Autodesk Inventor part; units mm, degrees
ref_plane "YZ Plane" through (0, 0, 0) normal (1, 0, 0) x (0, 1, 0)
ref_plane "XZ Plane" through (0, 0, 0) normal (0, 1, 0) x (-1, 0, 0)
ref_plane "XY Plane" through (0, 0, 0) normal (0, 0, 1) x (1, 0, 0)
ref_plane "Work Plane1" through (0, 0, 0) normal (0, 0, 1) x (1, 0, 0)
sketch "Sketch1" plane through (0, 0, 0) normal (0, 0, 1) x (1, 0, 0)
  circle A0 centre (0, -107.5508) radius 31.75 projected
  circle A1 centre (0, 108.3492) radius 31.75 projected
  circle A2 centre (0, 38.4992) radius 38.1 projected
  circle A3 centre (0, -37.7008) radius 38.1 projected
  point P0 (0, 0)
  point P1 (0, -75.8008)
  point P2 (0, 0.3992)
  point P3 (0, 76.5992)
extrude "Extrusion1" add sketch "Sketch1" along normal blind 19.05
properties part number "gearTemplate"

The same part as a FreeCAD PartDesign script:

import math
import FreeCAD as App
import Part
import Sketcher
from FreeCAD import Vector
Q = App.Units.Quantity

doc = App.newDocument("Part")
body = doc.addObject("PartDesign::Body", "Body")
body.AllowCompound = True

# Sketch on XY plane
sketch1 = body.newObject("Sketcher::SketchObject", "Sketch")
sketch1.AttachmentSupport = (doc.getObject("XY_Plane"), [""])
sketch1.MapMode = "FlatFace"
sketch1.addGeometry([
    Part.Circle(Vector(0, -108, 0), Vector(0, 0, 1), 32),  # 0
    Part.Circle(Vector(0, 108, 0), Vector(0, 0, 1), 32),  # 1
    Part.ArcOfCircle(Part.Circle(Vector(0, 38, 0), Vector(0, 0, 1), 38), math.radians(90), math.radians(270)),  # 2
    Part.ArcOfCircle(Part.Circle(Vector(0, 38, 0), Vector(0, 0, 1), 38), math.radians(-90), math.radians(90)),  # 3
    Part.ArcOfCircle(Part.Circle(Vector(0, -38, 0), Vector(0, 0, 1), 38), math.radians(90), math.radians(270)),  # 4
    Part.ArcOfCircle(Part.Circle(Vector(0, -38, 0), Vector(0, 0, 1), 38), math.radians(-90), math.radians(90)),  # 5
], False)
sketch1.addConstraint([
    Sketcher.Constraint("Tangent", 2, 1, 3, 2),
    Sketcher.Constraint("Coincident", 3, 1, 2, 2),
    Sketcher.Constraint("Tangent", 4, 1, 5, 2),
    Sketcher.Constraint("Coincident", 5, 1, 4, 2),
    Sketcher.Constraint("Coincident", 4, 1, 3, 1),
    Sketcher.Constraint("Equal", 0, 1),
    Sketcher.Constraint("Equal", 3, 4),
    Sketcher.Constraint("PointOnObject", 0, 3, -2),
    Sketcher.Constraint("PointOnObject", 1, 3, -2),
    Sketcher.Constraint("PointOnObject", 2, 3, -2),
    Sketcher.Constraint("PointOnObject", 4, 3, -2),
    Sketcher.Constraint("PointOnObject", 2, 1, -2),
    Sketcher.Constraint("PointOnObject", 3, 1, -2),
    Sketcher.Constraint("PointOnObject", 5, 1, -2),
    Sketcher.Constraint("Diameter", 0, Q("2.5 in")),
    Sketcher.Constraint("Radius", 2, Q("1.5 in")),
    Sketcher.Constraint("DistanceY", 0, 3, 1, 3, Q("8.5 in")),
    Sketcher.Constraint("DistanceY", 2, 3, 1, 3, Q("2.75 in")),
    Sketcher.Constraint("DistanceY", 0, 3, -1, 1, Q("107.5508 mm")),
])
pad1 = body.newObject("PartDesign::Pad", "Pad")
pad1.Profile = sketch1
pad1.Length = Q("0.75 in")

doc.recompute()
